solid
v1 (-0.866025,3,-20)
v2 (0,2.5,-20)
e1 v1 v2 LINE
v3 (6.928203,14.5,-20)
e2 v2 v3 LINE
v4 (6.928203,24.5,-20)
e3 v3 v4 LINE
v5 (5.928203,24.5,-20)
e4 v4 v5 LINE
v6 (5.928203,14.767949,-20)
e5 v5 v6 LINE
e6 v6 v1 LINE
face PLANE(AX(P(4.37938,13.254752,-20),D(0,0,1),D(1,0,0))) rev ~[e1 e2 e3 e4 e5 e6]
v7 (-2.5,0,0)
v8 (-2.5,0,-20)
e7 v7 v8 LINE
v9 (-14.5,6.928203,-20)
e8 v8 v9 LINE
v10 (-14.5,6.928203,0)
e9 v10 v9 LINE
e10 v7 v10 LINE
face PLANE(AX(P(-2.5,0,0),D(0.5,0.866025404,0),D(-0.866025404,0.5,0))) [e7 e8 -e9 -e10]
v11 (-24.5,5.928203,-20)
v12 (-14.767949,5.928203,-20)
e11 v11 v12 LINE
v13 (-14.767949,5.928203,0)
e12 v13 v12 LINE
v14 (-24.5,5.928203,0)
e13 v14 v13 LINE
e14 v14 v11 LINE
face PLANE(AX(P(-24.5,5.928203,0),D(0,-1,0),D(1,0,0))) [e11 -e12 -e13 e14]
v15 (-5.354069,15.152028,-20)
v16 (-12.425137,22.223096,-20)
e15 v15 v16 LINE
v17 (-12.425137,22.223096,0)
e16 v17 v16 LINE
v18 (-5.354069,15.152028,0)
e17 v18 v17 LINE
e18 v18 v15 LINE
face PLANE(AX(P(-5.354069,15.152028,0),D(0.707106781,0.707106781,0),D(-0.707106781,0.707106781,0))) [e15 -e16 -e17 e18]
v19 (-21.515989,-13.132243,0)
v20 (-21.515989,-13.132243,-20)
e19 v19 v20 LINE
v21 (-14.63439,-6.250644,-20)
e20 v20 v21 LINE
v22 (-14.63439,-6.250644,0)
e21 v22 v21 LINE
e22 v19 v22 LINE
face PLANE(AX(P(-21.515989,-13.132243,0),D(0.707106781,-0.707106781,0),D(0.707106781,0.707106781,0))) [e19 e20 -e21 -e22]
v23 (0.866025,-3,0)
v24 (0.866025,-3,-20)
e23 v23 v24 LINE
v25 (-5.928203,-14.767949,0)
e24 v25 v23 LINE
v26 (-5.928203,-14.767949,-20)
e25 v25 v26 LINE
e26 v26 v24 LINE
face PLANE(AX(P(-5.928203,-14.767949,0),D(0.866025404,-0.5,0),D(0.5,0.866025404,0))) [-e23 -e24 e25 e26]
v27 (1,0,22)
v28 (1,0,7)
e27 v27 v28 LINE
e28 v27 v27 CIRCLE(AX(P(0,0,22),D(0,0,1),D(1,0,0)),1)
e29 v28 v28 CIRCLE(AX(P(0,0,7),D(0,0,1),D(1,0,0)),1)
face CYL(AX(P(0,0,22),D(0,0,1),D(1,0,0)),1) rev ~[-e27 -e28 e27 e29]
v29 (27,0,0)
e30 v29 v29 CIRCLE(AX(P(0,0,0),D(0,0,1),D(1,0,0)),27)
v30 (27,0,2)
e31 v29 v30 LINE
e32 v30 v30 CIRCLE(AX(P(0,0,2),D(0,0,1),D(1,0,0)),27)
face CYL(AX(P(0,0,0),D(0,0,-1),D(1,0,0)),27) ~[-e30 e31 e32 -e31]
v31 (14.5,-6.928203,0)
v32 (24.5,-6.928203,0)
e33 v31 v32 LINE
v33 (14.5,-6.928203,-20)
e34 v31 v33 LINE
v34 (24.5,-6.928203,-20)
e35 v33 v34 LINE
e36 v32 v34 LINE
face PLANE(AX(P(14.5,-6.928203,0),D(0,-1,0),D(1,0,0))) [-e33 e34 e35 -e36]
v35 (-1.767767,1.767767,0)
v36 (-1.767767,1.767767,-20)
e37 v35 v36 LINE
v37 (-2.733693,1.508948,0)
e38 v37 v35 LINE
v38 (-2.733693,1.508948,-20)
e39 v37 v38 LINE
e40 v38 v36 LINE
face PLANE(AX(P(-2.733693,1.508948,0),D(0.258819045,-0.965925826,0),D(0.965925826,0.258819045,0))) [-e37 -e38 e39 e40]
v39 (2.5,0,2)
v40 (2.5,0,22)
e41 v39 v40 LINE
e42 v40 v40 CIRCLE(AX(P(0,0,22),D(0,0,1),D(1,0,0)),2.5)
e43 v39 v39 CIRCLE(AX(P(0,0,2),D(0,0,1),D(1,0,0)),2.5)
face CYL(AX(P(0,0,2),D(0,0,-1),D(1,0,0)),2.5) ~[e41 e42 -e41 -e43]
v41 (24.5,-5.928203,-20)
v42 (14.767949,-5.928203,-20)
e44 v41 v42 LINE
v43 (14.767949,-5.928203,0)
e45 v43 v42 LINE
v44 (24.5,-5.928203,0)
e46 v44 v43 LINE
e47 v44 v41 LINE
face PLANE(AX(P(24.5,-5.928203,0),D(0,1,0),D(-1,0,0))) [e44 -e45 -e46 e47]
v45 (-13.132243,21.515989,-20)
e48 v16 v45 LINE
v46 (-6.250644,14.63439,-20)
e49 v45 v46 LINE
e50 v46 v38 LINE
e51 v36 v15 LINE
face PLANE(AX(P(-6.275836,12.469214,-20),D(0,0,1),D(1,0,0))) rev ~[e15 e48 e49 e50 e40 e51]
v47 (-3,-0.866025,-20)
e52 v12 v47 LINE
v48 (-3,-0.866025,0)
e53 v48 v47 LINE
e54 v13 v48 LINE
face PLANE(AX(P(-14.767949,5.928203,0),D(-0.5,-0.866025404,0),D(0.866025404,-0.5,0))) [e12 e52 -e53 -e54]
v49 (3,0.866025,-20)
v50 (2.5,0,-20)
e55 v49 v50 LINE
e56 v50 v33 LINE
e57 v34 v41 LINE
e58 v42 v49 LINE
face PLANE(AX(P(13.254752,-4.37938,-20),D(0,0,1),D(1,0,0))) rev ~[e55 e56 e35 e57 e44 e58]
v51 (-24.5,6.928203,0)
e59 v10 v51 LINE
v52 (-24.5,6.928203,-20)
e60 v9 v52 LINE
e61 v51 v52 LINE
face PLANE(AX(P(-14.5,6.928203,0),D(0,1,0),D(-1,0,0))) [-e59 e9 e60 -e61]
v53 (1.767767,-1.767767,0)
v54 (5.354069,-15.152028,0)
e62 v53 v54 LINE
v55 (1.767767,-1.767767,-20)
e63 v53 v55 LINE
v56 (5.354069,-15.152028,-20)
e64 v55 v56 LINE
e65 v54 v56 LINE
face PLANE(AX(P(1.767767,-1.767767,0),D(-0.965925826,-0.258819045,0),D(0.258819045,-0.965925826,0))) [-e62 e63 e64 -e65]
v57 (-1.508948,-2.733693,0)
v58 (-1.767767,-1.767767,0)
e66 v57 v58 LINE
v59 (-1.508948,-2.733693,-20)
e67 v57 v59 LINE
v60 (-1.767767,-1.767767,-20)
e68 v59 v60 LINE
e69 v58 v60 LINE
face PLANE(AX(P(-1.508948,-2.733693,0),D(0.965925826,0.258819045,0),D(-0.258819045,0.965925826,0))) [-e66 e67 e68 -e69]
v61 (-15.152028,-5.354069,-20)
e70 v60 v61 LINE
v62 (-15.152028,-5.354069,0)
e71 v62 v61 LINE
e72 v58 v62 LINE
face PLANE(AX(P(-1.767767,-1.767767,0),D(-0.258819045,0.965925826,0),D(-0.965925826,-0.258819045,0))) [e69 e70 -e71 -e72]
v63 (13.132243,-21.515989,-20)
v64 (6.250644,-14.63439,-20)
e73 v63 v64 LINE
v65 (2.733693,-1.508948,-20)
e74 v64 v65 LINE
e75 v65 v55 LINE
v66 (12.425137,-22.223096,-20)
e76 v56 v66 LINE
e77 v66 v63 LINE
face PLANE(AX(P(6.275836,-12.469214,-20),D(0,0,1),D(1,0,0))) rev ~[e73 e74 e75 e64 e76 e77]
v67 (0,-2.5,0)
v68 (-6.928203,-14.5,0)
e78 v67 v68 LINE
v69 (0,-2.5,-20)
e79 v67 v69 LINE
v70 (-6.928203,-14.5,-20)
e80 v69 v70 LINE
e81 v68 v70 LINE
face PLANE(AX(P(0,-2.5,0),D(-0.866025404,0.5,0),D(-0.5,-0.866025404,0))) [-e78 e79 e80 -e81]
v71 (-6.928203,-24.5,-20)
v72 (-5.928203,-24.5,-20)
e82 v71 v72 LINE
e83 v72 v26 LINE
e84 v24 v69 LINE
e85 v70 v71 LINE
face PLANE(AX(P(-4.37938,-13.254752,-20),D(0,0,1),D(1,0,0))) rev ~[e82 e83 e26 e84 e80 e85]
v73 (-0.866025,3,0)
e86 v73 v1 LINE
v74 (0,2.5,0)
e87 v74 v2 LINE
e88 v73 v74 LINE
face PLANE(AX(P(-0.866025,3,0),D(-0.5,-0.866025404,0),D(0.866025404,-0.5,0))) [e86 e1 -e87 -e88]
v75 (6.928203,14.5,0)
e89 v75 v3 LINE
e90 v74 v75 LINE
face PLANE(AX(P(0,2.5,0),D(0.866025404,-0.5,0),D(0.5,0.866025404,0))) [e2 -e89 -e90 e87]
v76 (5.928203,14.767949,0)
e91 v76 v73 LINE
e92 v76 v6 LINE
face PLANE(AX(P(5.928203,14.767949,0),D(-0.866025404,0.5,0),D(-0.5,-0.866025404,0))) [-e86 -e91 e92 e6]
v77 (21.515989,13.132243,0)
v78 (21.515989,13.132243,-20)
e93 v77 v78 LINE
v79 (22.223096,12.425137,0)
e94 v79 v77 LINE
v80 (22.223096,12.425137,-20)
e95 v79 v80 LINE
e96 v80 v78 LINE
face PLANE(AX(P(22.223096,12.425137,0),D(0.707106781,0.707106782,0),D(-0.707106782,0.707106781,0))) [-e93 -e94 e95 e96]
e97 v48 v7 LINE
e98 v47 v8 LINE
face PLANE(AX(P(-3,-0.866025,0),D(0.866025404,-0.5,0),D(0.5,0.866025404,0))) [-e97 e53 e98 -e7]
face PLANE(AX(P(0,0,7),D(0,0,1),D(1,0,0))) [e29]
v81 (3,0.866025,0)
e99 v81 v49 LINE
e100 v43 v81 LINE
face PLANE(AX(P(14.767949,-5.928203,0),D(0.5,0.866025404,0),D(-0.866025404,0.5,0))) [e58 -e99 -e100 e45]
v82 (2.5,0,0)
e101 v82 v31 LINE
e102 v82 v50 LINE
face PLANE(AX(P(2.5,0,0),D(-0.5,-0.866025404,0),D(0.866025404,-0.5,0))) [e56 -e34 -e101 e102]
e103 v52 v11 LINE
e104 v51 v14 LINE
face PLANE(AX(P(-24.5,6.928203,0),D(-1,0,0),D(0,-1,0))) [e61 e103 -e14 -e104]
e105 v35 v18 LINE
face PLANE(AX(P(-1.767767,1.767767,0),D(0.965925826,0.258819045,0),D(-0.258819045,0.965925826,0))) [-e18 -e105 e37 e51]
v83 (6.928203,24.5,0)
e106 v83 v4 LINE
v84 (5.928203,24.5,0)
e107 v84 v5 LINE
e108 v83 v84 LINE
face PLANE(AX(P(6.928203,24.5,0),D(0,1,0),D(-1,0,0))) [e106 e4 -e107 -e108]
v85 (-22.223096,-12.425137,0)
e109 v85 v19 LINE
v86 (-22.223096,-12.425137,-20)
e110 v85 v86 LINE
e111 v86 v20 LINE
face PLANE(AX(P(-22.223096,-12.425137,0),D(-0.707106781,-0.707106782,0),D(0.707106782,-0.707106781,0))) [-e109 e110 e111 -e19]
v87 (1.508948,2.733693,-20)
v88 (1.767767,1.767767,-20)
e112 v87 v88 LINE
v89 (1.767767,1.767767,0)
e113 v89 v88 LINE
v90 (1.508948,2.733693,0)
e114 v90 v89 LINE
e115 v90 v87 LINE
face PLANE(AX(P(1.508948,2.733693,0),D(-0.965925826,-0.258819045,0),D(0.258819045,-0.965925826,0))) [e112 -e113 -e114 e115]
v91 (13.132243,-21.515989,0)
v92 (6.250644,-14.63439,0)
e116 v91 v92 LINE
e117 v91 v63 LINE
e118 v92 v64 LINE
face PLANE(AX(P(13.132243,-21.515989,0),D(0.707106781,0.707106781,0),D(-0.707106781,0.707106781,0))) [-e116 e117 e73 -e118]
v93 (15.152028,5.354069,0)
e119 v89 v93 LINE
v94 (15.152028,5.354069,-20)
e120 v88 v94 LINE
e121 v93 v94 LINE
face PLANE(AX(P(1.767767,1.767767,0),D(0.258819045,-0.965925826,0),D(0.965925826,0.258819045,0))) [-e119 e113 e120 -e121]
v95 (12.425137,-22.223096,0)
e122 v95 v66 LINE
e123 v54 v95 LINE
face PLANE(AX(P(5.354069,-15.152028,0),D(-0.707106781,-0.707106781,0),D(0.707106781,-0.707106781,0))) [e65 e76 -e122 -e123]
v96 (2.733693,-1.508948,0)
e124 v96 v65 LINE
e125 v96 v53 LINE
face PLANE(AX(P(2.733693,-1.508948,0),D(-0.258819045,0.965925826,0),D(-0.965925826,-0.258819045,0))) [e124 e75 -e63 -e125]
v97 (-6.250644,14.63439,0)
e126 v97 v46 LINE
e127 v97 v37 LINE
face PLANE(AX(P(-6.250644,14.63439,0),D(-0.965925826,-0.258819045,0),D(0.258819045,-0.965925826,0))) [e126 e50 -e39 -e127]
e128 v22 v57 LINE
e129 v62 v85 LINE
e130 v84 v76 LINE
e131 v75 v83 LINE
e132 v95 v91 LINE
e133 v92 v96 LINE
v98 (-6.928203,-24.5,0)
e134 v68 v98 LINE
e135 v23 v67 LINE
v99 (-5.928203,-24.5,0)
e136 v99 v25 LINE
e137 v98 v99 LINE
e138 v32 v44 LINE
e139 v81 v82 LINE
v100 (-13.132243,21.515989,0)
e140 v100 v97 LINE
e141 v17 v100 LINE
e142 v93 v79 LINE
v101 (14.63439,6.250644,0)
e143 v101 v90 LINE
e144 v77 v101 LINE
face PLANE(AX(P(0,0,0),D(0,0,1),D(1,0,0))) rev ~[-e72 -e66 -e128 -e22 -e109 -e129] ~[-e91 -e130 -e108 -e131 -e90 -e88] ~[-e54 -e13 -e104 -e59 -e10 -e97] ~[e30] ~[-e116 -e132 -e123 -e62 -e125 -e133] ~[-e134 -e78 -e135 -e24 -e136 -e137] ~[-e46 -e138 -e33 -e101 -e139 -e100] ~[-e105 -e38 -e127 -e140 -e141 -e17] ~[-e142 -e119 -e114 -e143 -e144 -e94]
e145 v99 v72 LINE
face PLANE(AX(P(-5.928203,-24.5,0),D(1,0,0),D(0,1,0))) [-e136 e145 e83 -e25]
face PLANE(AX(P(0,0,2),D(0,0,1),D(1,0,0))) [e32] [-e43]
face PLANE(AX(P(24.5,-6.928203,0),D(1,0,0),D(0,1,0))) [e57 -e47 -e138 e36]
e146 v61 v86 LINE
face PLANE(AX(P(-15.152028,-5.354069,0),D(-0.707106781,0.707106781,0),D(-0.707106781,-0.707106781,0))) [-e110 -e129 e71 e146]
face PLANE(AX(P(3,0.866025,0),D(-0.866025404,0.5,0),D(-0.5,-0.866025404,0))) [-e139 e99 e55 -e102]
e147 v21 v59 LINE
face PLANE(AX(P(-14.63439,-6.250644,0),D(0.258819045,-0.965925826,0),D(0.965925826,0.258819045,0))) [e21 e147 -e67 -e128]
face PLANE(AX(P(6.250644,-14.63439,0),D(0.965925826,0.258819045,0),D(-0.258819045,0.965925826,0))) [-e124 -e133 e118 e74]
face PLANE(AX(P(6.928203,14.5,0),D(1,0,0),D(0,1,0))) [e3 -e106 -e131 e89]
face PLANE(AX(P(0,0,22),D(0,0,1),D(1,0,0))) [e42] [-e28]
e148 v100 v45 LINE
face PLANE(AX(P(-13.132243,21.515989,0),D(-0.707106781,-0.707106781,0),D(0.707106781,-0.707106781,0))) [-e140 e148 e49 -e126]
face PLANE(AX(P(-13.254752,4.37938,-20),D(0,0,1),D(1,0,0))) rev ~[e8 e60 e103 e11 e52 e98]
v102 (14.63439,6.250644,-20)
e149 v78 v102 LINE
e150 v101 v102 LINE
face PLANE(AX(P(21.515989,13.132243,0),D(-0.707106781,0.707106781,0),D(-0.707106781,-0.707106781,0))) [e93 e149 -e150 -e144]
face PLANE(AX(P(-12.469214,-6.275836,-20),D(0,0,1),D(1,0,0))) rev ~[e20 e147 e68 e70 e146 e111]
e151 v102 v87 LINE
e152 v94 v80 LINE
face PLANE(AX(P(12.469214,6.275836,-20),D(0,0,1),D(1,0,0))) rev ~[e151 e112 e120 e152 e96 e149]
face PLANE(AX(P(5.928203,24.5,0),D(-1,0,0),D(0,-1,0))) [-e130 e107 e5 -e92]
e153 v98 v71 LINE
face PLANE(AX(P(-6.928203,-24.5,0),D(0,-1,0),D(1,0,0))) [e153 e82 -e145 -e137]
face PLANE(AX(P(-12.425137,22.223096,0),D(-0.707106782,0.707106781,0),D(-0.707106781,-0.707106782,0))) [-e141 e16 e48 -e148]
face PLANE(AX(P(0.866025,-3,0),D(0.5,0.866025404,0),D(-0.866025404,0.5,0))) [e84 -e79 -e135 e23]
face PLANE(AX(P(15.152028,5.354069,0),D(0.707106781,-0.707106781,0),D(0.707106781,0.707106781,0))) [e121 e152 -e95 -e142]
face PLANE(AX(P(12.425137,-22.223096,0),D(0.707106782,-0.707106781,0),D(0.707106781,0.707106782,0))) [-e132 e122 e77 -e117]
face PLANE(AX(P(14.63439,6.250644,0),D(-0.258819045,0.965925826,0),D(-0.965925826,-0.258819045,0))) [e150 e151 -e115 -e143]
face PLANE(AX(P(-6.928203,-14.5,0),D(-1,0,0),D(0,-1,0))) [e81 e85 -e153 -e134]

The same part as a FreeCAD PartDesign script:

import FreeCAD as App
import Part
import Sketcher
from FreeCAD import Vector
Q = App.Units.Quantity


def add_polygon(sketch, points):
    """Adds a closed chain of lines whose ends are joined by coincident constraints."""
    first, n = sketch.GeometryCount, len(points)
    for a, b in zip(points, points[1:] + points[:1]):
        sketch.addGeometry(Part.LineSegment(App.Vector(*a, 0), App.Vector(*b, 0)), False)
    for i in range(n):
        sketch.addConstraint(Sketcher.Constraint("Coincident", first + i, 2, first + (i + 1) % n, 1))

doc = App.newDocument("Part")
body = doc.addObject("PartDesign::Body", "Body")

sketch1 = doc.addObject("Sketcher::SketchObject", "Sketch")
body.addObject(sketch1)
sketch1.AttachmentSupport = (doc.XY_Plane, [""])
sketch1.MapMode = "FlatFace"
sketch1.addGeometry(Part.Circle(Vector(0, 0, 0), Vector(0, 0, 1), 27), False)
sketch1.addConstraint([
    Sketcher.Constraint("Coincident", 0, 3, -1, 1),
    Sketcher.Constraint("Diameter", 0, Q("54 mm")),
])
pad1 = doc.addObject("PartDesign::Pad", "Pad")
body.addObject(pad1)
pad1.Profile = sketch1
pad1.Length = 2

sketch2 = doc.addObject("Sketcher::SketchObject", "Sketch001")
body.addObject(sketch2)
sketch2.AttachmentSupport = (doc.XY_Plane, [""])
sketch2.MapMode = "FlatFace"
add_polygon(sketch2, [(-2.5, 0), (-14.5, 6.928203), (-24.5, 6.928203), (-24.5, 5.928203), (-14.767949, 5.928203), (-3, -0.866025)])
add_polygon(sketch2, [(-12.425137, 22.223096), (-13.132243, 21.515989), (-6.250644, 14.63439), (-2.733693, 1.508948), (-1.767767, 1.767767), (-5.354069, 15.152028)])
add_polygon(sketch2, [(6.928203, 24.5), (5.928203, 24.5), (5.928203, 14.767949), (-0.866025, 3), (0, 2.5), (6.928203, 14.5)])
add_polygon(sketch2, [(22.223096, 12.425137), (21.515989, 13.132243), (14.63439, 6.250644), (1.508948, 2.733693), (1.767767, 1.767767), (15.152028, 5.354069)])
add_polygon(sketch2, [(24.5, -6.928203), (24.5, -5.928203), (14.767949, -5.928203), (3, 0.866025), (2.5, 0), (14.5, -6.928203)])
add_polygon(sketch2, [(12.425137, -22.223096), (13.132243, -21.515989), (6.250644, -14.63439), (2.733693, -1.508948), (1.767767, -1.767767), (5.354069, -15.152028)])
add_polygon(sketch2, [(-6.928203, -24.5), (-5.928203, -24.5), (-5.928203, -14.767949), (0.866025, -3), (0, -2.5), (-6.928203, -14.5)])
add_polygon(sketch2, [(-22.223096, -12.425137), (-21.515989, -13.132243), (-14.63439, -6.250644), (-1.508948, -2.733693), (-1.767767, -1.767767), (-15.152028, -5.354069)])
sketch2.addConstraint([
    Sketcher.Constraint("Horizontal", 1),
    Sketcher.Constraint("Vertical", 2),
    Sketcher.Constraint("Horizontal", 3),
    Sketcher.Constraint("Horizontal", 12),
    Sketcher.Constraint("Vertical", 13),
    Sketcher.Constraint("Vertical", 17),
    Sketcher.Constraint("Vertical", 24),
    Sketcher.Constraint("Horizontal", 25),
    Sketcher.Constraint("Horizontal", 29),
    Sketcher.Constraint("Horizontal", 36),
    Sketcher.Constraint("Vertical", 37),
    Sketcher.Constraint("Vertical", 41),
    Sketcher.Constraint("Symmetric", 2, 2, 24, 2, -1, 1),
    Sketcher.Constraint("Symmetric", 4, 2, 26, 2, -1, 1),
    Sketcher.Constraint("Symmetric", 5, 2, 27, 2, -1, 1),
    Sketcher.Constraint("Symmetric", 0, 2, 28, 2, -1, 1),
    Sketcher.Constraint("Symmetric", 6, 2, 30, 2, -1, 1),
    Sketcher.Constraint("Symmetric", 7, 2, 31, 2, -1, 1),
    Sketcher.Constraint("Symmetric", 8, 2, 32, 2, -1, 1),
    Sketcher.Constraint("Symmetric", 9, 2, 33, 2, -1, 1),
    Sketcher.Constraint("Symmetric", 10, 2, 34, 2, -1, 1),
    Sketcher.Constraint("Symmetric", 11, 2, 35, 2, -1, 1),
    Sketcher.Constraint("Symmetric", 12, 2, 36, 2, -1, 1),
    Sketcher.Constraint("Symmetric", 14, 2, 38, 2, -1, 1),
    Sketcher.Constraint("Symmetric", 15, 2, 39, 2, -1, 1),
    Sketcher.Constraint("Symmetric", 16, 2, 40, 2, -1, 1),
    Sketcher.Constraint("Symmetric", 18, 2, 42, 2, -1, 1),
    Sketcher.Constraint("Symmetric", 19, 2, 43, 2, -1, 1),
    Sketcher.Constraint("Symmetric", 20, 2, 44, 2, -1, 1),
    Sketcher.Constraint("Symmetric", 21, 2, 45, 2, -1, 1),
    Sketcher.Constraint("Symmetric", 22, 2, 46, 2, -1, 1),
    Sketcher.Constraint("Symmetric", 23, 2, 47, 2, -1, 1),
    Sketcher.Constraint("Symmetric", 9, 2, 21, 2, -2),
    Sketcher.Constraint("PointOnObject", 5, 2, -1),
    Sketcher.Constraint("PointOnObject", 15, 2, -2),
    Sketcher.Constraint("Parallel", 0, 4),
    Sketcher.Constraint("Perpendicular", 4, 5),
    Sketcher.Constraint("Perpendicular", 6, 7),
    Sketcher.Constraint("Perpendicular", 8, 9),
    Sketcher.Constraint("Perpendicular", 9, 10),
    Sketcher.Constraint("Parallel", 7, 11),
    Sketcher.Constraint("Parallel", 5, 14),
    Sketcher.Constraint("Perpendicular", 14, 15),
    Sketcher.Constraint("Perpendicular", 15, 16),
    Sketcher.Constraint("Parallel", 11, 18),
    Sketcher.Constraint("Perpendicular", 18, 19),
    Sketcher.Constraint("Perpendicular", 10, 20),
    Sketcher.Constraint("Perpendicular", 20, 21),
    Sketcher.Constraint("Perpendicular", 21, 22),
    Sketcher.Constraint("Parallel", 19, 23),
    Sketcher.Constraint("Perpendicular", 16, 26),
    Sketcher.Constraint("Perpendicular", 28, 38),
    Sketcher.Constraint("Equal", 36, 2),
    Sketcher.Constraint("Equal", 25, 13),
    Sketcher.Constraint("Equal", 29, 17),
    Sketcher.Constraint("Equal", 5, 6),
    Sketcher.Constraint("Equal", 4, 8),
    Sketcher.Constraint("Equal", 6, 9),
    Sketcher.Constraint("Equal", 0, 10),
    Sketcher.Constraint("Equal", 8, 14),
    Sketcher.Constraint("Equal", 15, 18),
    Sketcher.Constraint("Equal", 7, 19),
    Sketcher.Constraint("Equal", 14, 20),
    Sketcher.Constraint("Equal", 18, 21),
    Sketcher.Constraint("DistanceX", 1, 2, 1, 1, Q("10 mm")),
    Sketcher.Constraint("DistanceX", 12, 2, 12, 1, Q("1 mm")),
    Sketcher.Constraint("Angle", 0, Q("150 deg")),
    Sketcher.Constraint("Angle", 6, Q("-135 deg")),
    Sketcher.Constraint("Angle", 8, Q("-75 deg")),
    Sketcher.Constraint("Distance", 11, Q("10 mm")),
    Sketcher.Constraint("DistanceX", 4, 2, -1, 1, Q("3 mm")),
    Sketcher.Constraint("DistanceY", -1, 1, 14, 2, Q("3 mm")),
    Sketcher.Constraint("DistanceX", 0, 2, 5, 2, Q("12 mm")),
    Sketcher.Constraint("DistanceY", 8, 2, 13, 2, Q("13.259001 mm")),
    Sketcher.Constraint("DistanceX", 20, 2, 25, 2, Q("13.259001 mm")),
])
pad2 = doc.addObject("PartDesign::Pad", "Pad001")
body.addObject(pad2)
pad2.Profile = sketch2
pad2.Length = 20
pad2.Reversed = True

sketch3 = doc.addObject("Sketcher::SketchObject", "Sketch002")
body.addObject(sketch3)
sketch3.AttachmentSupport = (doc.XY_Plane, [""])
sketch3.MapMode = "FlatFace"
sketch3.AttachmentOffset = App.Placement(Vector(0, 0, 2), App.Rotation())
sketch3.addGeometry(Part.Circle(Vector(0, 0, 0), Vector(0, 0, 1), 2.5), False)
sketch3.addConstraint([
    Sketcher.Constraint("Coincident", 0, 3, -1, 1),
    Sketcher.Constraint("Diameter", 0, Q("5 mm")),
])
pad3 = doc.addObject("PartDesign::Pad", "Pad002")
body.addObject(pad3)
pad3.Profile = sketch3
pad3.Length = 20

sketch4 = doc.addObject("Sketcher::SketchObject", "Sketch003")
body.addObject(sketch4)
sketch4.AttachmentSupport = (doc.XY_Plane, [""])
sketch4.MapMode = "FlatFace"
sketch4.AttachmentOffset = App.Placement(Vector(0, 0, 22), App.Rotation())
sketch4.addGeometry(Part.Circle(Vector(0, 0, 0), Vector(0, 0, 1), 1), False)
sketch4.addConstraint([
    Sketcher.Constraint("Coincident", 0, 3, -1, 1),
    Sketcher.Constraint("Diameter", 0, Q("2 mm")),
])
pocket1 = doc.addObject("PartDesign::Pocket", "Pocket")
body.addObject(pocket1)
pocket1.Profile = sketch4
pocket1.Length = 15

doc.recompute()
